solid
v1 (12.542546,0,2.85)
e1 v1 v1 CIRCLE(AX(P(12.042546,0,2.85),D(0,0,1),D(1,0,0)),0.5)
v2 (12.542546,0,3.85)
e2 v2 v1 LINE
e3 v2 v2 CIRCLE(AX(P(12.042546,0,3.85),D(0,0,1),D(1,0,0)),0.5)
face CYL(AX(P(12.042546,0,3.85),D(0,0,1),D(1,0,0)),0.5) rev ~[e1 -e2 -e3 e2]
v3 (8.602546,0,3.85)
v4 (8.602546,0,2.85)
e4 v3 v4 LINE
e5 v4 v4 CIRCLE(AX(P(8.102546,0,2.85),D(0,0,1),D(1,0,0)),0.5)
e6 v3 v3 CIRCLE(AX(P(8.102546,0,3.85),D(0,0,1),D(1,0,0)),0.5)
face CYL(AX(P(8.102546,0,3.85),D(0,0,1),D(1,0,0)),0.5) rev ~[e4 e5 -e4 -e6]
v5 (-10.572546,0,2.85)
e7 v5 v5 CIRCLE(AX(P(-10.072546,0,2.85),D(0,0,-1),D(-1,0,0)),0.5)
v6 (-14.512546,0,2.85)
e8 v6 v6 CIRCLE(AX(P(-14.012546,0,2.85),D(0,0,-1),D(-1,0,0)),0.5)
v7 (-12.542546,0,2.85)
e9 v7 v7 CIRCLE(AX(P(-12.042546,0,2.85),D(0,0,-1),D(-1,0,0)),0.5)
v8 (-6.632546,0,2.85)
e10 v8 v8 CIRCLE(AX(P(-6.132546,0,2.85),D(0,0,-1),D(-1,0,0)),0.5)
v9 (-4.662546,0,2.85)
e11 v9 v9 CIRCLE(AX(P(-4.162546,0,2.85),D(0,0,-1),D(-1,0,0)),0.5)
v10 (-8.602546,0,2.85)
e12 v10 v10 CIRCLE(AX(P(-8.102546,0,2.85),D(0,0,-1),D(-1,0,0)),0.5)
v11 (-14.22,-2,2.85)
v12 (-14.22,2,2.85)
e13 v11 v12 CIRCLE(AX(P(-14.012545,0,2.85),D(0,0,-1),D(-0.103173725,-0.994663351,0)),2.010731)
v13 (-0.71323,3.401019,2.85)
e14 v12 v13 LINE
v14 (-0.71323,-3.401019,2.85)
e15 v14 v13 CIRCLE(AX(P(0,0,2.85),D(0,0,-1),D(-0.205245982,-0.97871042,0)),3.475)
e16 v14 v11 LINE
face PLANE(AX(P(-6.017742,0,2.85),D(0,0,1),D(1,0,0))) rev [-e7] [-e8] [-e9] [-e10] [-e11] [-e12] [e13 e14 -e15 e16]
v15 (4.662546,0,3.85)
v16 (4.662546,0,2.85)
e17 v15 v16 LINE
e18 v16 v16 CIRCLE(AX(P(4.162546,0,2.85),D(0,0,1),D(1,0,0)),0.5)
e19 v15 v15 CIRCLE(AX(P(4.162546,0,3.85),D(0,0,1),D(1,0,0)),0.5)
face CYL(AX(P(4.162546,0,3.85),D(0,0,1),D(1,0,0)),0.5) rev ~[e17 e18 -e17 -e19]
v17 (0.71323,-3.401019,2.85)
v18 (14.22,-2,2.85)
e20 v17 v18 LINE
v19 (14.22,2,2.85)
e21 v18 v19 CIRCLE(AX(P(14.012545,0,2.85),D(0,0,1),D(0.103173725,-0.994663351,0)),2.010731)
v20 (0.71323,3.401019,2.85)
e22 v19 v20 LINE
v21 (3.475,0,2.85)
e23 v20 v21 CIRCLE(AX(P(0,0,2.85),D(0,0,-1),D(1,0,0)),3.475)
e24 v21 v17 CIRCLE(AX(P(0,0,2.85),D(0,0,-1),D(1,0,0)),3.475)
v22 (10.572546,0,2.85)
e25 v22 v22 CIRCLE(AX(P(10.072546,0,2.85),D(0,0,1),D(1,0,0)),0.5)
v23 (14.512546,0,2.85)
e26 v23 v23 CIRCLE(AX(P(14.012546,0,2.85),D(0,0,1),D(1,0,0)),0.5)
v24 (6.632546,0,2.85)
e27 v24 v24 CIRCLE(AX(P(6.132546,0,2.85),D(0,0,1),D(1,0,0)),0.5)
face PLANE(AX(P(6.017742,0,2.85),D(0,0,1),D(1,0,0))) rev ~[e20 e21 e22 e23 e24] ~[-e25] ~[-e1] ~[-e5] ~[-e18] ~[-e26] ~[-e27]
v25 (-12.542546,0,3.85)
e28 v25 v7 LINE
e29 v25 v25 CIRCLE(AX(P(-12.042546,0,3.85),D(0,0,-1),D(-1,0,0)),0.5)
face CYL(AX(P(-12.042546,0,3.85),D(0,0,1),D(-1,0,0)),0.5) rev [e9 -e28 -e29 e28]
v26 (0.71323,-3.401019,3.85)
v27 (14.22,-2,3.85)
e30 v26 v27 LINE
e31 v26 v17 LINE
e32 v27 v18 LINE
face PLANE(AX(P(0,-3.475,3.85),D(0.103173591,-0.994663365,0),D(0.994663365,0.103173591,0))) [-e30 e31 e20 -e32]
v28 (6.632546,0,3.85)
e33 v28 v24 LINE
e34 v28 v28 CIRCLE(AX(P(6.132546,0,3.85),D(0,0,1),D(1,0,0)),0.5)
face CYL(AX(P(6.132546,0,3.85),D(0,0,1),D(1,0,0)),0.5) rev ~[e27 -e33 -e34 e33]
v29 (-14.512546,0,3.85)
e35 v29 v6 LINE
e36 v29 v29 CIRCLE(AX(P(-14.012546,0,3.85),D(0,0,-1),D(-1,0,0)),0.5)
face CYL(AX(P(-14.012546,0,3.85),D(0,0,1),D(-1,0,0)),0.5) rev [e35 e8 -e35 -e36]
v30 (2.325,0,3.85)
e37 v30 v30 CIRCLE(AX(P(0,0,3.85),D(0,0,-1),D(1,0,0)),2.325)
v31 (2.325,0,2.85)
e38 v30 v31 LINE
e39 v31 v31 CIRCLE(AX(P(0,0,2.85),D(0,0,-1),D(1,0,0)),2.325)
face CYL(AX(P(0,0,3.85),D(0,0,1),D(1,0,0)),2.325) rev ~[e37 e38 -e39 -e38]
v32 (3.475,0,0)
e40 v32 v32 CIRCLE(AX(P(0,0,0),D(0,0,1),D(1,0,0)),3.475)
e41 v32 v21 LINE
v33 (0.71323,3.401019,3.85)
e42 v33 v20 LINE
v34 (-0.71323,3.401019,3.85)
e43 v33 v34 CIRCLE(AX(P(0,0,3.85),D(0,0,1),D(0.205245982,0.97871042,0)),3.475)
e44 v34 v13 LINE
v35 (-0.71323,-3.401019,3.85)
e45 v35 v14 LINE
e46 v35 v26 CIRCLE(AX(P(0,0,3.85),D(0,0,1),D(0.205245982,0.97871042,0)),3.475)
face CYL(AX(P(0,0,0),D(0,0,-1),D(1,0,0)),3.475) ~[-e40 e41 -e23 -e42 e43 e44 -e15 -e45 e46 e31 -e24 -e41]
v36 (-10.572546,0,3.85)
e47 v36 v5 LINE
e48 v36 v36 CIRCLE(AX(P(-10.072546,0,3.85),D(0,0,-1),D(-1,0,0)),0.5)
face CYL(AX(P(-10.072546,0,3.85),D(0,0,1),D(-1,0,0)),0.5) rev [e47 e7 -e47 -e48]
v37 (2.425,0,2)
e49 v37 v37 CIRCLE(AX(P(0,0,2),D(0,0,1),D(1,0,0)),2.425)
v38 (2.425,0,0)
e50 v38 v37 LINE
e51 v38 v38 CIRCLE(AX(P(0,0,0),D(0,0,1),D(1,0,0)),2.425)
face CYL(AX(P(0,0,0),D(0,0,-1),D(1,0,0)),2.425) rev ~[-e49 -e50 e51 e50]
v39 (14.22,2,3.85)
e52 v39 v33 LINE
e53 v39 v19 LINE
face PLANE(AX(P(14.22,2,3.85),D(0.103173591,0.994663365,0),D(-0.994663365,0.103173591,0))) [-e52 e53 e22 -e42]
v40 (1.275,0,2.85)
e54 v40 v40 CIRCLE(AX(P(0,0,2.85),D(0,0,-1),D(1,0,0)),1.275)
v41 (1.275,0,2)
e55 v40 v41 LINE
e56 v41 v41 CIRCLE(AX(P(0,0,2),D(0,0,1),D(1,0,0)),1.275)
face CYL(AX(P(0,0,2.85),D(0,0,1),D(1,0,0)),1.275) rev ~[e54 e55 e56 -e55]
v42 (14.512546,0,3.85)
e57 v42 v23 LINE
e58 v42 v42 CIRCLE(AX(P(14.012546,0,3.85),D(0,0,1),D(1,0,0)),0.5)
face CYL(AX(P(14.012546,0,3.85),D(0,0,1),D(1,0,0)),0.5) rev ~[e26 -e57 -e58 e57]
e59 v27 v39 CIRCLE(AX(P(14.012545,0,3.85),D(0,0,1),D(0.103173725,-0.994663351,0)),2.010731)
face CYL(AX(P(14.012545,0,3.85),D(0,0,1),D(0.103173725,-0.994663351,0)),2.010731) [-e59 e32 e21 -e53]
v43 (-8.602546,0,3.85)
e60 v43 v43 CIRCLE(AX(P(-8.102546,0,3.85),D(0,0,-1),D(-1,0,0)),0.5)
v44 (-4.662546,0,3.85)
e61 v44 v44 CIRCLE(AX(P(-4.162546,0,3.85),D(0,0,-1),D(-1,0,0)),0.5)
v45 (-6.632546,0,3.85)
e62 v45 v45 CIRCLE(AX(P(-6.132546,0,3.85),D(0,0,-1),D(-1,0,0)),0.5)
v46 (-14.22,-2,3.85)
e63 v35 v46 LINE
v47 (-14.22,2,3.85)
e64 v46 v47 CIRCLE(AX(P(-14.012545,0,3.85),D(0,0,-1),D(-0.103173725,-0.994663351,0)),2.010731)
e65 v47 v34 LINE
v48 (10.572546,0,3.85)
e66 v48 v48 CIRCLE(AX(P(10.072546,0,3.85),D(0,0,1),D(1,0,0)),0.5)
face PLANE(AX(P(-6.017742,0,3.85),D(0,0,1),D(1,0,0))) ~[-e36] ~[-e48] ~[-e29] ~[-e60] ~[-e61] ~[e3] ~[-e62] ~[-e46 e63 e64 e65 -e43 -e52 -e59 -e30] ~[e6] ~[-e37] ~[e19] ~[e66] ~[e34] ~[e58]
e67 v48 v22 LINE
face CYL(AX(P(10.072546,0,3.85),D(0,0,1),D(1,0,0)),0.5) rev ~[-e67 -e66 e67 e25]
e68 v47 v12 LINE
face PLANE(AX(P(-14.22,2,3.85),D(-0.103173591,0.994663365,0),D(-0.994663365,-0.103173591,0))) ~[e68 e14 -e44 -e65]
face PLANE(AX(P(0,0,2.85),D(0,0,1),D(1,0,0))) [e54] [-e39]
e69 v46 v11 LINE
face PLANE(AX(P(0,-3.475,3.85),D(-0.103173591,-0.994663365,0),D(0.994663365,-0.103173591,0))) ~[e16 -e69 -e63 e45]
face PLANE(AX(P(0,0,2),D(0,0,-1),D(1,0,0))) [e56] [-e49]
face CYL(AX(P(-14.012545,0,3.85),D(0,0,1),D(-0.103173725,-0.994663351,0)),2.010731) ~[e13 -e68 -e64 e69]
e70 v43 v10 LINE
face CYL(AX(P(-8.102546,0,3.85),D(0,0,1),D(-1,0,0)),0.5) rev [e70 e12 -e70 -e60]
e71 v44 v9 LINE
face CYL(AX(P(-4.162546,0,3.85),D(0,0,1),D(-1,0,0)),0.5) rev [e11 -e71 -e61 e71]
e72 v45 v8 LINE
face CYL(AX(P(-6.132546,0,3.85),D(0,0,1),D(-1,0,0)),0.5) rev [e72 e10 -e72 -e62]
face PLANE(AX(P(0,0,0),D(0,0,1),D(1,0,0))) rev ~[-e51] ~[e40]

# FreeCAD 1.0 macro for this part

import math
import FreeCAD as App
import Part
import Sketcher

V = App.Vector

doc = App.newDocument("Part")
body = doc.addObject("PartDesign::Body", "Body")

sketch1 = body.newObject("Sketcher::SketchObject", "Sketch")
sketch1.AttachmentSupport = (doc.getObject("XY_Plane"), [""])
sketch1.MapMode = "FlatFace"
sketch1.addGeometry(Part.Circle(V(0, 0, 0), V(0, 0, 1), 3.5), False)
sketch1.addConstraint(Sketcher.Constraint("Coincident", 0, 3, -1, 1))
sketch1.addConstraint(Sketcher.Constraint("Diameter", 0, 6.95))
pad1 = body.newObject("PartDesign::Pad", "Pad")
pad1.Profile = sketch1
pad1.Length = 3.85

sketch2 = body.newObject("Sketcher::SketchObject", "Sketch001")
sketch2.AttachmentSupport = (doc.getObject("XY_Plane"), [""])
sketch2.MapMode = "FlatFace"
sketch2.addGeometry(Part.Circle(V(0, 0, 0), V(0, 0, 1), 2.4), False)
sketch2.addConstraint(Sketcher.Constraint("Coincident", 0, 3, -1, 1))
sketch2.addConstraint(Sketcher.Constraint("Diameter", 0, 4.85))
pocket1 = body.newObject("PartDesign::Pocket", "Pocket")
pocket1.Profile = sketch2
pocket1.Length = 2
pocket1.Reversed = True

sketch3 = body.newObject("Sketcher::SketchObject", "Sketch002")
sketch3.AttachmentSupport = (doc.getObject("XY_Plane"), [""])
sketch3.MapMode = "FlatFace"
sketch3.AttachmentOffset = App.Placement(V(0, 0, 3.85), App.Rotation())
sketch3.addGeometry(Part.LineSegment(V(14.2, 2, 0), V(0, 3.5, 0)), False)
sketch3.addGeometry(Part.ArcOfCircle(Part.Circle(V(0, 0, 0), V(0, 0, 1), 3.5), math.radians(90), math.radians(270)), False)
sketch3.addGeometry(Part.LineSegment(V(0, -3.5, 0), V(14.2, -2, 0)), False)
sketch3.addGeometry(Part.ArcOfCircle(Part.Circle(V(14, 0, 0), V(0, 0, 1), 2), math.radians(-84), math.radians(84)), False)
sketch3.addConstraint(Sketcher.Constraint("Coincident", 0, 2, 1, 1))
sketch3.addConstraint(Sketcher.Constraint("Coincident", 1, 2, 2, 1))
sketch3.addConstraint(Sketcher.Constraint("Tangent", 2, 2, 3, 1))
sketch3.addConstraint(Sketcher.Constraint("Tangent", 3, 2, 0, 1))
sketch3.addConstraint(Sketcher.Constraint("Coincident", 1, 3, -1, 1))
sketch3.addConstraint(Sketcher.Constraint("Symmetric", 2, 2, 3, 2, -1))
sketch3.addConstraint(Sketcher.Constraint("PointOnObject", 0, 2, -2))
sketch3.addConstraint(Sketcher.Constraint("DistanceY", 2, 2, -1, 1, 2.0))
sketch3.addConstraint(Sketcher.Constraint("Radius", 1, 3.475))
sketch3.addConstraint(Sketcher.Constraint("DistanceX", -1, 1, 2, 2, 14.22))
pad2 = body.newObject("PartDesign::Pad", "Pad001")
pad2.Profile = sketch3
pad2.Length = 1
pad2.Reversed = True

sketch4 = body.newObject("Sketcher::SketchObject", "Sketch003")
sketch4.AttachmentSupport = (doc.getObject("XY_Plane"), [""])
sketch4.MapMode = "FlatFace"
sketch4.AttachmentOffset = App.Placement(V(0, 0, 3.85), App.Rotation())
sketch4.addGeometry(Part.Circle(V(0, 0, 0), V(0, 0, 1), 2.3), False)
sketch4.addConstraint(Sketcher.Constraint("Coincident", 0, 3, -1, 1))
sketch4.addConstraint(Sketcher.Constraint("Diameter", 0, 4.65))
pocket2 = body.newObject("PartDesign::Pocket", "Pocket001")
pocket2.Profile = sketch4
pocket2.Length = 1

sketch5 = body.newObject("Sketcher::SketchObject", "Sketch004")
sketch5.AttachmentSupport = (doc.getObject("XY_Plane"), [""])
sketch5.MapMode = "FlatFace"
sketch5.AttachmentOffset = App.Placement(V(0, 0, 2.85), App.Rotation())
sketch5.addGeometry(Part.Circle(V(0, 0, 0), V(0, 0, 1), 1.3), False)
sketch5.addConstraint(Sketcher.Constraint("Coincident", 0, 3, -1, 1))
sketch5.addConstraint(Sketcher.Constraint("Diameter", 0, 2.55))
pocket3 = body.newObject("PartDesign::Pocket", "Pocket002")
pocket3.Profile = sketch5
pocket3.Type = "ThroughAll"

sketch6 = body.newObject("Sketcher::SketchObject", "Sketch005")
sketch6.AttachmentSupport = (doc.getObject("XY_Plane"), [""])
sketch6.MapMode = "FlatFace"
sketch6.AttachmentOffset = App.Placement(V(0, 0, 3.85), App.Rotation())
sketch6.addGeometry(Part.Circle(V(14, 0, 0), V(0, 0, 1), 0.5), False)
sketch6.addGeometry(Part.Circle(V(12, 0, 0), V(0, 0, 1), 0.5), False)
sketch6.addGeometry(Part.Circle(V(10.1, 0, 0), V(0, 0, 1), 0.5), False)
sketch6.addGeometry(Part.Circle(V(8.1, 0, 0), V(0, 0, 1), 0.5), False)
sketch6.addGeometry(Part.Circle(V(6.1, 0, 0), V(0, 0, 1), 0.5), False)
sketch6.addGeometry(Part.Circle(V(4.2, 0, 0), V(0, 0, 1), 0.5), False)
sketch6.addConstraint(Sketcher.Constraint("Equal", 0, 1))
sketch6.addConstraint(Sketcher.Constraint("Equal", 1, 2))
sketch6.addConstraint(Sketcher.Constraint("Equal", 2, 3))
sketch6.addConstraint(Sketcher.Constraint("Equal", 3, 4))
sketch6.addConstraint(Sketcher.Constraint("Equal", 4, 5))
sketch6.addConstraint(Sketcher.Constraint("PointOnObject", 0, 3, -1))
sketch6.addConstraint(Sketcher.Constraint("PointOnObject", 1, 3, -1))
sketch6.addConstraint(Sketcher.Constraint("PointOnObject", 2, 3, -1))
sketch6.addConstraint(Sketcher.Constraint("PointOnObject", 3, 3, -1))
sketch6.addConstraint(Sketcher.Constraint("PointOnObject", 4, 3, -1))
sketch6.addConstraint(Sketcher.Constraint("PointOnObject", 5, 3, -1))
sketch6.addConstraint(Sketcher.Constraint("Diameter", 0, 1.0))
sketch6.addConstraint(Sketcher.Constraint("DistanceX", 1, 3, 0, 3, 1.97))
sketch6.addConstraint(Sketcher.Constraint("DistanceX", 2, 3, 1, 3, 1.97))
sketch6.addConstraint(Sketcher.Constraint("DistanceX", 3, 3, 2, 3, 1.97))
sketch6.addConstraint(Sketcher.Constraint("DistanceX", 4, 3, 3, 3, 1.97))
sketch6.addConstraint(Sketcher.Constraint("DistanceX", 5, 3, 4, 3, 1.97))
sketch6.addConstraint(Sketcher.Constraint("DistanceX", -1, 1, 0, 3, 14.012546))
pocket4 = body.newObject("PartDesign::Pocket", "Pocket003")
pocket4.Profile = sketch6
pocket4.Type = "ThroughAll"
body2 = doc.addObject("PartDesign::Body", "Body001")
doc.recompute()

body2.BaseFeature = body
doc.recompute()

mirroring = doc.addObject("Part::Mirroring", "Mirroring")
mirroring.Source = body
mirroring.Base = V(0, 0, 0)
mirroring.Normal = V(1, 0, 0)
body3 = doc.addObject("PartDesign::Body", "Body002")
body3.BaseFeature = mirroring
boolean = body2.newObject("PartDesign::Boolean", "Boolean")
boolean.Type = "Fuse"
boolean.addObjects([body3])
doc.recompute()
mirroring.Visibility = False

doc.recompute()
